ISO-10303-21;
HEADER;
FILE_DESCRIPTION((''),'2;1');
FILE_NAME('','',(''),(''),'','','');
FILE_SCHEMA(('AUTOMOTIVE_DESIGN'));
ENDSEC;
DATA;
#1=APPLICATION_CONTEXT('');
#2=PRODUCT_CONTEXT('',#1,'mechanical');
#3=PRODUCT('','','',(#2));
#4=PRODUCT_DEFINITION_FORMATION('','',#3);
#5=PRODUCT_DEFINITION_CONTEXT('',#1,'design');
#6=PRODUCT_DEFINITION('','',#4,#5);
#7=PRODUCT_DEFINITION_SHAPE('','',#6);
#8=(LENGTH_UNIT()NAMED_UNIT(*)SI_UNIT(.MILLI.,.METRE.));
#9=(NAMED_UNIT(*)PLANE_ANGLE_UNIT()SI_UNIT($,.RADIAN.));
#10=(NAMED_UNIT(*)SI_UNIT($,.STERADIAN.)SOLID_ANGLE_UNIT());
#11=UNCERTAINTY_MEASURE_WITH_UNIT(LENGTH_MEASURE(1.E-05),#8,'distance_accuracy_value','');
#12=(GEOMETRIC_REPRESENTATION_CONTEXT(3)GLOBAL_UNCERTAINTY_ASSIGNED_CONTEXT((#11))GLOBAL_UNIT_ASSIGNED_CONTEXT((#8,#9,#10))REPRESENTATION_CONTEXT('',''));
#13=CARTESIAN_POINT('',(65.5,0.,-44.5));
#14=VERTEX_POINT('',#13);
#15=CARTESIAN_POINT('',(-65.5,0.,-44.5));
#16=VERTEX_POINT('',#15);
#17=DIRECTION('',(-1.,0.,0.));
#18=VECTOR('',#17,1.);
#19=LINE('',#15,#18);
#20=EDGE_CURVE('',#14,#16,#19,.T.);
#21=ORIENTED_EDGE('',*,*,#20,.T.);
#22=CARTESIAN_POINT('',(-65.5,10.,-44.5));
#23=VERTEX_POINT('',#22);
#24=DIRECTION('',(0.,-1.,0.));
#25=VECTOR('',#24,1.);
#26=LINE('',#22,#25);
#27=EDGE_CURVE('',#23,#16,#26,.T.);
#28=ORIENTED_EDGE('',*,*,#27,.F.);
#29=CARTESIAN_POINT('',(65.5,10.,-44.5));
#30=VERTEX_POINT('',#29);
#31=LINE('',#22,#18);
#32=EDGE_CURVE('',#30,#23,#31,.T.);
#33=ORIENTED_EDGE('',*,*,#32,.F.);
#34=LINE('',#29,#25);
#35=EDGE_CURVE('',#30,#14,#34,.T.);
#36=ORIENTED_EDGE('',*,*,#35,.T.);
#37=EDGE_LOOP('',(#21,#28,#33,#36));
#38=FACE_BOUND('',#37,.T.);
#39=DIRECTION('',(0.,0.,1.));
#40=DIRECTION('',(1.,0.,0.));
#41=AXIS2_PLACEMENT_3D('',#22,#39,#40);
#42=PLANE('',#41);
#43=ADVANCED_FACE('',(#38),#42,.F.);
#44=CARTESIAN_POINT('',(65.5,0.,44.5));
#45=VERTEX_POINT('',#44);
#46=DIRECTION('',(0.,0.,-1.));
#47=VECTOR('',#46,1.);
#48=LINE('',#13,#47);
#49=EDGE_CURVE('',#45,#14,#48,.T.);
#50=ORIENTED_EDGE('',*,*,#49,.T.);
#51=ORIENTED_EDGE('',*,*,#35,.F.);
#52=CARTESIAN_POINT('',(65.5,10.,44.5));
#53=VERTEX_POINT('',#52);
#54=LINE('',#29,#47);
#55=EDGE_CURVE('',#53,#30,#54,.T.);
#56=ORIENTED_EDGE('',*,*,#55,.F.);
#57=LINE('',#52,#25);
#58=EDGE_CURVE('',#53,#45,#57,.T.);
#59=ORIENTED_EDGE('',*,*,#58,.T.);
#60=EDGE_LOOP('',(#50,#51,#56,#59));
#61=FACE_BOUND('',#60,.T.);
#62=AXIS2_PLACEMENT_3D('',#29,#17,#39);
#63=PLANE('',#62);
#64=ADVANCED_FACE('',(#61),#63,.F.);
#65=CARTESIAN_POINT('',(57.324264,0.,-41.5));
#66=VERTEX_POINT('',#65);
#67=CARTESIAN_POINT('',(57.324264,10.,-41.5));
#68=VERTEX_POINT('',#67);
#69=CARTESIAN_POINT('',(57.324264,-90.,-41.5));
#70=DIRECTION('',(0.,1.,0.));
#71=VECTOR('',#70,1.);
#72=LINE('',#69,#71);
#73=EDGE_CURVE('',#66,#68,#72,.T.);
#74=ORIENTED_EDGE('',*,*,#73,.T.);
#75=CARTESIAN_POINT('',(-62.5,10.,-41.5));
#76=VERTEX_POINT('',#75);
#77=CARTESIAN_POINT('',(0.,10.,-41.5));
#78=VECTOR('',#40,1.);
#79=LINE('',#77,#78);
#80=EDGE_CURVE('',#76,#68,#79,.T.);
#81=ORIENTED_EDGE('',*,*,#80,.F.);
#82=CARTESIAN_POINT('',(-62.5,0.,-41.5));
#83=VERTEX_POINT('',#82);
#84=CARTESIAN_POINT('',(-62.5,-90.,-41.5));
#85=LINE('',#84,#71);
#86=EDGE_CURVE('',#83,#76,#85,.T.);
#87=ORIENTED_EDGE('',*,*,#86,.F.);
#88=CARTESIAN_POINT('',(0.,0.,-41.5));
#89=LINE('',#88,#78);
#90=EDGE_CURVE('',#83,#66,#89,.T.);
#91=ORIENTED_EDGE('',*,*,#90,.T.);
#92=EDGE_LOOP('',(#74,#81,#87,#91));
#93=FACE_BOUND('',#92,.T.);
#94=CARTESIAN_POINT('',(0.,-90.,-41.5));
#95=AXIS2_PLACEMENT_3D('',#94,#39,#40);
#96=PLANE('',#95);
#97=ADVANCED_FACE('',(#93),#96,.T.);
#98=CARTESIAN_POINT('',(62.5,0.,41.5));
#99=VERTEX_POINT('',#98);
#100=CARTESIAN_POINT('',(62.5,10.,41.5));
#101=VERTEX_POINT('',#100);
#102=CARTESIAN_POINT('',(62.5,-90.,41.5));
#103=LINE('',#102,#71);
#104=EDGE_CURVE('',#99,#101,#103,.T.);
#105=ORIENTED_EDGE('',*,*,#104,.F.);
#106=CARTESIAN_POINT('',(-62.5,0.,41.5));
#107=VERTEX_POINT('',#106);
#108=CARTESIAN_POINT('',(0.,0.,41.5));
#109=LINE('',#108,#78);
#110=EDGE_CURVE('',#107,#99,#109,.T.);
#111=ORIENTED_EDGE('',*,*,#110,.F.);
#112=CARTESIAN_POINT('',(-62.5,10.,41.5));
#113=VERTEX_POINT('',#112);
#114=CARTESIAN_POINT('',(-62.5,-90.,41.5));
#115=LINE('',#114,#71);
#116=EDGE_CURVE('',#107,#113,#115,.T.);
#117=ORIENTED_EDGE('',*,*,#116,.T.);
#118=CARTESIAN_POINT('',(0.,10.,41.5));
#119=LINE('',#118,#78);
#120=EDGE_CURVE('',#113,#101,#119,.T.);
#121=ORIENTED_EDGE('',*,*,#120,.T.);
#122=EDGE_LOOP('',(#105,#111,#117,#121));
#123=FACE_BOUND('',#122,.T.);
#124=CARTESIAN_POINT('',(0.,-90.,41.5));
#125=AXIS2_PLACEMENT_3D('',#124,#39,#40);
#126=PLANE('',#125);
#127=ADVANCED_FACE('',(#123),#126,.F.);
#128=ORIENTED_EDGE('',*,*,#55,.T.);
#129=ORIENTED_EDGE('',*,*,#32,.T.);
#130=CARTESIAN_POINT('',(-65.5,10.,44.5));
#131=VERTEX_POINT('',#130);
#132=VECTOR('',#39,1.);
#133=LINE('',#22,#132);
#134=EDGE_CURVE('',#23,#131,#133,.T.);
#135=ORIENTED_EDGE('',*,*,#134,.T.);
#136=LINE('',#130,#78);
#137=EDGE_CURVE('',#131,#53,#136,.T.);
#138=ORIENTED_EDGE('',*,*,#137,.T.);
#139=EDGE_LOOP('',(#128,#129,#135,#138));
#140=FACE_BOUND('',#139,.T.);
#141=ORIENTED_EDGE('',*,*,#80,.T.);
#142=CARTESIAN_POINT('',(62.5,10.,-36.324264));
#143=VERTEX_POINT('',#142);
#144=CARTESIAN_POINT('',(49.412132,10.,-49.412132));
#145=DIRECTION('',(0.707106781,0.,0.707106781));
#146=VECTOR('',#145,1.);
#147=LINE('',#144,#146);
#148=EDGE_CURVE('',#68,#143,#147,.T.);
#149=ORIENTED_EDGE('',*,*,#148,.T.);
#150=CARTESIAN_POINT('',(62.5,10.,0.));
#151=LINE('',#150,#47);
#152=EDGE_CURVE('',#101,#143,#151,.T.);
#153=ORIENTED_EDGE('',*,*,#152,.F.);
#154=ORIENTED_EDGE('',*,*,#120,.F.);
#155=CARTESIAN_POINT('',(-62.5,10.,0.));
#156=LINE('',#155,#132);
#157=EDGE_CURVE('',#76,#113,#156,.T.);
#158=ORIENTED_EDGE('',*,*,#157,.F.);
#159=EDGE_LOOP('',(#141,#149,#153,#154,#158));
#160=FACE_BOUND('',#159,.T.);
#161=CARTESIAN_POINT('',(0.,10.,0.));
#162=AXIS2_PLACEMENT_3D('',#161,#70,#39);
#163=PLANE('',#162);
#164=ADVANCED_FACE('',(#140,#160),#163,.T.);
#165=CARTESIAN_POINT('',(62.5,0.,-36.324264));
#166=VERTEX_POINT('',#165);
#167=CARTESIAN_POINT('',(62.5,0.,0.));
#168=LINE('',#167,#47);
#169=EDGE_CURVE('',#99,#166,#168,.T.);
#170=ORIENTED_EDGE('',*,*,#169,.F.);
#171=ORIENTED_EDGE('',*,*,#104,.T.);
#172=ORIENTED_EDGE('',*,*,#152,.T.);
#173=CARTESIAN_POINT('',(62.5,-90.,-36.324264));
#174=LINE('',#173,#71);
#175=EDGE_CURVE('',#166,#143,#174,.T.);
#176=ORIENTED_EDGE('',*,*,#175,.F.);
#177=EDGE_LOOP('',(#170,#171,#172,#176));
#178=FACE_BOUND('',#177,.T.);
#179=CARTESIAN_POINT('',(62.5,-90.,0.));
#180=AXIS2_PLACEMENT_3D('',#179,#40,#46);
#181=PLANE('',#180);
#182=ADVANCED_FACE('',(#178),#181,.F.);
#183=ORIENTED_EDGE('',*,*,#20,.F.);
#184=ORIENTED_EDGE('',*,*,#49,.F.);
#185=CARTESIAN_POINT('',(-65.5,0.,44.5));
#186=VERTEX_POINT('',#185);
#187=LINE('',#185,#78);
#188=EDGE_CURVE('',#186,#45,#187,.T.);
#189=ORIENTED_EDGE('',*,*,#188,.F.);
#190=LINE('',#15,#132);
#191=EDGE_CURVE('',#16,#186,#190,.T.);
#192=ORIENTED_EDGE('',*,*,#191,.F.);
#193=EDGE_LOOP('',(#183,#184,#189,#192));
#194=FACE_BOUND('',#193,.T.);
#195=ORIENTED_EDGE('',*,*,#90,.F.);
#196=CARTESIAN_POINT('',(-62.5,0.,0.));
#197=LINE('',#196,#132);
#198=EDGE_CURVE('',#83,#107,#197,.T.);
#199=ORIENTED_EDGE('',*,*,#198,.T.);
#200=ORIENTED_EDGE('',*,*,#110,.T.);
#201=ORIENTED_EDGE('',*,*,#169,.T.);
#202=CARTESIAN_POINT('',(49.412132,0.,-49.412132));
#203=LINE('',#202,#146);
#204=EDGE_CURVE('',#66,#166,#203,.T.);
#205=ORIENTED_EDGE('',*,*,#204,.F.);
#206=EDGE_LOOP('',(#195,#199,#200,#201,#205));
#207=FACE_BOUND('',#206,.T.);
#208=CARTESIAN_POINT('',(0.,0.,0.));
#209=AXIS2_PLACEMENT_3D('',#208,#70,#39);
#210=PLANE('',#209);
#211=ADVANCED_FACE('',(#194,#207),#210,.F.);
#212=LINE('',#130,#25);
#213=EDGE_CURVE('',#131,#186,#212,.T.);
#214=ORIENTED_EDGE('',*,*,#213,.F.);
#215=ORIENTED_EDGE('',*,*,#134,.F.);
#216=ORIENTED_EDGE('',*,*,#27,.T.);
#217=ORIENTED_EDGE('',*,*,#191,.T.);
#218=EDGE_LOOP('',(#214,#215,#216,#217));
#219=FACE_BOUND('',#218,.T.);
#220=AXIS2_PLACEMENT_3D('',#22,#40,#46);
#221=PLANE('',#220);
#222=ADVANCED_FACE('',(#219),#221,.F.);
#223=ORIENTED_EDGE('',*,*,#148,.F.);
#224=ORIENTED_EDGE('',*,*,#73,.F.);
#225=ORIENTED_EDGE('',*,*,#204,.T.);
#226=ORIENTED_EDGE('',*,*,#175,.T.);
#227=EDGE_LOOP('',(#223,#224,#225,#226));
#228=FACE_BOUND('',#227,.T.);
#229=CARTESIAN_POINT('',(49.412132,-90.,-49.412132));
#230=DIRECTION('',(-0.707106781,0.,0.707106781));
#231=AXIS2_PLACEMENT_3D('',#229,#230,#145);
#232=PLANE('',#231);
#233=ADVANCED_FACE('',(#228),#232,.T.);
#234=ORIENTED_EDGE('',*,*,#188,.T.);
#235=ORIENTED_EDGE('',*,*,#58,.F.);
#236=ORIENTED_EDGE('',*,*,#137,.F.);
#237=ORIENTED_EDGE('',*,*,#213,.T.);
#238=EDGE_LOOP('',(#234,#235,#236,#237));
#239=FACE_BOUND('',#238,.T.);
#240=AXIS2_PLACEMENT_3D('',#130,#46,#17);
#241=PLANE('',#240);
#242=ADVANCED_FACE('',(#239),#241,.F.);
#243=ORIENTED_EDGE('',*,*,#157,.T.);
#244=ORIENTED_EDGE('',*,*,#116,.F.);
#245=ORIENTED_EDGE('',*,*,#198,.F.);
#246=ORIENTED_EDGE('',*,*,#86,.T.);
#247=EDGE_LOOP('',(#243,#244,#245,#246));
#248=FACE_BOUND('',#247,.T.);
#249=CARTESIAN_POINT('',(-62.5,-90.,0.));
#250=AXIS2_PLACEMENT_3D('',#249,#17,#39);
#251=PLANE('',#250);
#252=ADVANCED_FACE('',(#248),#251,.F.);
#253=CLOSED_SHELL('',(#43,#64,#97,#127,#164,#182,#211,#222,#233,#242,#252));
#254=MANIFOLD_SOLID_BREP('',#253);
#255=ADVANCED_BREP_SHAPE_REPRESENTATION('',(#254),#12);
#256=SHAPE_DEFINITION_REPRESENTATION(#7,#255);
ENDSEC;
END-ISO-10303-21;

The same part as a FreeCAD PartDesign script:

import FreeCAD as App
import Part
import Sketcher

V = App.Vector
Q = App.Units.Quantity

doc = App.newDocument("Part")
body = doc.addObject("PartDesign::Body", "Body")

sketch1 = body.newObject("Sketcher::SketchObject", "Sketch")
sketch1.AttachmentSupport = (doc.getObject("XZ_Plane"), [""])
sketch1.MapMode = "FlatFace"
sketch1.addGeometry(Part.LineSegment(V(-66, -44, 0), V(-66, 44, 0)), False)
sketch1.addGeometry(Part.LineSegment(V(-66, 44, 0), V(66, 44, 0)), False)
sketch1.addGeometry(Part.LineSegment(V(66, 44, 0), V(66, -44, 0)), False)
sketch1.addGeometry(Part.LineSegment(V(66, -44, 0), V(-66, -44, 0)), False)
sketch1.addConstraint(Sketcher.Constraint("Coincident", 0, 2, 1, 1))
sketch1.addConstraint(Sketcher.Constraint("Coincident", 1, 2, 2, 1))
sketch1.addConstraint(Sketcher.Constraint("Coincident", 2, 2, 3, 1))
sketch1.addConstraint(Sketcher.Constraint("Coincident", 3, 2, 0, 1))
sketch1.addConstraint(Sketcher.Constraint("Vertical", 0))
sketch1.addConstraint(Sketcher.Constraint("Horizontal", 1))
sketch1.addConstraint(Sketcher.Constraint("Vertical", 2))
sketch1.addConstraint(Sketcher.Constraint("Horizontal", 3))
sketch1.addConstraint(Sketcher.Constraint("Symmetric", 0, 2, 2, 2, -1, 1))
sketch1.addConstraint(Sketcher.Constraint("DistanceX", 1, 1, 1, 2, 131.0))
sketch1.addConstraint(Sketcher.Constraint("DistanceY", 0, 1, 0, 2, 89.0))
pad1 = body.newObject("PartDesign::Pad", "Pad")
pad1.Profile = sketch1
pad1.Length = 10
pad1.Reversed = True

sketch2 = body.newObject("Sketcher::SketchObject", "Sketch001")
sketch2.AttachmentSupport = (doc.getObject("XZ_Plane"), [""])
sketch2.MapMode = "FlatFace"
sketch2.AttachmentOffset = App.Placement(V(0, 0, -10), App.Rotation())
sketch2.addGeometry(Part.LineSegment(V(-62, -42, 0), V(-62, 42, 0)), False)
sketch2.addGeometry(Part.LineSegment(V(-62, 42, 0), V(62, 42, 0)), False)
sketch2.addGeometry(Part.LineSegment(V(62, 42, 0), V(62, -36, 0)), False)
sketch2.addGeometry(Part.LineSegment(V(62, -36, 0), V(57, -42, 0)), False)
sketch2.addGeometry(Part.LineSegment(V(57, -42, 0), V(-62, -42, 0)), False)
sketch2.addConstraint(Sketcher.Constraint("Coincident", 0, 2, 1, 1))
sketch2.addConstraint(Sketcher.Constraint("Coincident", 1, 2, 2, 1))
sketch2.addConstraint(Sketcher.Constraint("Coincident", 2, 2, 3, 1))
sketch2.addConstraint(Sketcher.Constraint("Coincident", 3, 2, 4, 1))
sketch2.addConstraint(Sketcher.Constraint("Coincident", 4, 2, 0, 1))
sketch2.addConstraint(Sketcher.Constraint("Vertical", 0))
sketch2.addConstraint(Sketcher.Constraint("Horizontal", 1))
sketch2.addConstraint(Sketcher.Constraint("Vertical", 2))
sketch2.addConstraint(Sketcher.Constraint("Horizontal", 4))
sketch2.addConstraint(Sketcher.Constraint("Symmetric", 1, 2, 4, 2, -1, 1))
sketch2.addConstraint(Sketcher.Constraint("DistanceX", 1, 1, 1, 2, 125.0))
sketch2.addConstraint(Sketcher.Constraint("DistanceY", 0, 1, 0, 2, 83.0))
sketch2.addConstraint(Sketcher.Constraint("Angle", 3, Q("-135 deg")))
sketch2.addConstraint(Sketcher.Constraint("DistanceX", 4, 2, 4, 1, 119.824264))
pocket1 = body.newObject("PartDesign::Pocket", "Pocket")
pocket1.Profile = sketch2
pocket1.Length = 100
pocket1.Reversed = True

doc.recompute()
